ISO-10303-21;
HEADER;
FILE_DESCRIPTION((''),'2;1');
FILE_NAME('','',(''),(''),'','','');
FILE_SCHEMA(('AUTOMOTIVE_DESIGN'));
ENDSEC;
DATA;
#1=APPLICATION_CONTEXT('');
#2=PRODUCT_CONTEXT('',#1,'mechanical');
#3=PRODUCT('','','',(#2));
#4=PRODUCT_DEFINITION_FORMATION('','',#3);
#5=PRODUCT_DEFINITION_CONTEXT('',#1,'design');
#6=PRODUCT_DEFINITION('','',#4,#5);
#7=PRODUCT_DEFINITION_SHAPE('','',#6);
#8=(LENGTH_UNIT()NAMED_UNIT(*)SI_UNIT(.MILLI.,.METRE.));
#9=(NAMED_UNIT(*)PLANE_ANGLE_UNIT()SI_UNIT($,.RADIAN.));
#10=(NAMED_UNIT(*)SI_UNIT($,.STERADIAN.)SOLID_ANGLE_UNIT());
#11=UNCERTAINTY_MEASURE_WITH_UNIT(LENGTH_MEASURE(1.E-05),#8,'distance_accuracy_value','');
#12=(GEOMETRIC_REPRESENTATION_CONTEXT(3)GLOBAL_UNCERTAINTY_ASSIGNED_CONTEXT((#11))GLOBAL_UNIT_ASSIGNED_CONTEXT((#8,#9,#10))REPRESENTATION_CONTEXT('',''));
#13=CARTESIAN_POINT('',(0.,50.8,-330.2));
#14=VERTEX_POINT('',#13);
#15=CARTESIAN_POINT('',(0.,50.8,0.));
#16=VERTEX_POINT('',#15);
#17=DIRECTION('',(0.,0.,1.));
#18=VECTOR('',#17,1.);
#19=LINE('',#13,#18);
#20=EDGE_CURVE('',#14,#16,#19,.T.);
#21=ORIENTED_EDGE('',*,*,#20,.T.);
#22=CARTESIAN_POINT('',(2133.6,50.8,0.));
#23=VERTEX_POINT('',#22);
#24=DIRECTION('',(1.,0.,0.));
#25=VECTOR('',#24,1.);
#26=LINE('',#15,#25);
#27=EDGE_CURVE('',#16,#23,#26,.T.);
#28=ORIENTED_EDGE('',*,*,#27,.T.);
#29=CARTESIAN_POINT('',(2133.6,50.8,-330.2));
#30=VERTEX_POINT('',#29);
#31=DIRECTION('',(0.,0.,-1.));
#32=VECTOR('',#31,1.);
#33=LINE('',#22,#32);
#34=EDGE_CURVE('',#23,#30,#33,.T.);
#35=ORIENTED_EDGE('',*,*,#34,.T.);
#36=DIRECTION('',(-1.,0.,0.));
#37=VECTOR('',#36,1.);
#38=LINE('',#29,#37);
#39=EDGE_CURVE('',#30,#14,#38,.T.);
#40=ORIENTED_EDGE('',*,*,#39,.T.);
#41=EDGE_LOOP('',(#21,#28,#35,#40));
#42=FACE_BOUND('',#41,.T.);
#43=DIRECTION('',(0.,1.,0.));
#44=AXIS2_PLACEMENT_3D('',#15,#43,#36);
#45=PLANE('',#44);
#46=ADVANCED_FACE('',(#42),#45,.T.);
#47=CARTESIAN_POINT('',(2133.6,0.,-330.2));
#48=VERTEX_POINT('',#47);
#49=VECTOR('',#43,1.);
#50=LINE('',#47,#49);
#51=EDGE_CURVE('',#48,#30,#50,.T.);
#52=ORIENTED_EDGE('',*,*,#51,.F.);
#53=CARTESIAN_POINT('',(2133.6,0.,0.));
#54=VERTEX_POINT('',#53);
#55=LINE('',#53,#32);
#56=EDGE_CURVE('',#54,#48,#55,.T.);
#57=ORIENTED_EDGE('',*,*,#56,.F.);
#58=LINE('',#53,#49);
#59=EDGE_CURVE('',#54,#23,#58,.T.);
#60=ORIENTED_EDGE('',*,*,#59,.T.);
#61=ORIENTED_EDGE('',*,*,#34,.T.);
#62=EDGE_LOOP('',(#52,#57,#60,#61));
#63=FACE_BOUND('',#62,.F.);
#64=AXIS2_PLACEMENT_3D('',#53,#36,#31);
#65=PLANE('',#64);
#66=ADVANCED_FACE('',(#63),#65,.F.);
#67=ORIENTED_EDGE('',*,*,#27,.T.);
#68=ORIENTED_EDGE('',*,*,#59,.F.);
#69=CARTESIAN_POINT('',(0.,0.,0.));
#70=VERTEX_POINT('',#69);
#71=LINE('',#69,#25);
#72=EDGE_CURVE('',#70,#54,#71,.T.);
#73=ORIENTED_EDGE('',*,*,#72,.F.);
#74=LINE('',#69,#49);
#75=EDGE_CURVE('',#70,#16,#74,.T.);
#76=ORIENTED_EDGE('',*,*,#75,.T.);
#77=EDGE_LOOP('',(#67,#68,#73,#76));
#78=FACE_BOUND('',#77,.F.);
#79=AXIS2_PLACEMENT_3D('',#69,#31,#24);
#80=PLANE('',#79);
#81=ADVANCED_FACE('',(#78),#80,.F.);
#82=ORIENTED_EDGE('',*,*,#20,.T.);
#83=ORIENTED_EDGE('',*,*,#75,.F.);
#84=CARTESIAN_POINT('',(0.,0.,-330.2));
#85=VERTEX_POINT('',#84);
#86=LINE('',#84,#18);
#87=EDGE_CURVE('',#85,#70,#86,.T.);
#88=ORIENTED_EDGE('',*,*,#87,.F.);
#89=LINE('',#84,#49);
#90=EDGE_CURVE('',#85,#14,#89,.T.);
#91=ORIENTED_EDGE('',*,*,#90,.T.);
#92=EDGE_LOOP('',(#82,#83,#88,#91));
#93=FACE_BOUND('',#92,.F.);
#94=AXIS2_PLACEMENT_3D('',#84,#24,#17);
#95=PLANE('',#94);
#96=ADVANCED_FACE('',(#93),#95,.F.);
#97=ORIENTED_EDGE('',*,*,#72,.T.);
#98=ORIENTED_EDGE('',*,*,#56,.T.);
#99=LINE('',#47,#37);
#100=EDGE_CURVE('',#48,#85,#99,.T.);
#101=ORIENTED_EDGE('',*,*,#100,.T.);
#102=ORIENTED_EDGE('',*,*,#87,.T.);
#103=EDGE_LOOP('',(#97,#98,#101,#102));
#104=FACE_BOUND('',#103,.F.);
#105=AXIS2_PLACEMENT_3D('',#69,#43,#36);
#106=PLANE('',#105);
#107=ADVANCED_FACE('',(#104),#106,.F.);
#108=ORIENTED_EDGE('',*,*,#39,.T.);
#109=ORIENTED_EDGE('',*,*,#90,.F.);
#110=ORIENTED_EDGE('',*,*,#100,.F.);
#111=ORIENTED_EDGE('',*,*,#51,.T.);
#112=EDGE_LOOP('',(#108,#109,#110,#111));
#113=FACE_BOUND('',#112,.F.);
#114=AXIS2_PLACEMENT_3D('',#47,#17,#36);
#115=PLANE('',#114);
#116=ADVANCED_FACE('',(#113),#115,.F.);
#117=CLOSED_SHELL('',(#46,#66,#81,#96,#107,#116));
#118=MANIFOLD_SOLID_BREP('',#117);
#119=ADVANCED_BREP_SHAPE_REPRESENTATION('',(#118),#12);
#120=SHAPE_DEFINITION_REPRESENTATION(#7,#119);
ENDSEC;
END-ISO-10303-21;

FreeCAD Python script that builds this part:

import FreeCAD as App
import Part
import Sketcher
Q = App.Units.Quantity

doc = App.newDocument("Part")
params = doc.addObject("Spreadsheet::Sheet", "Params")
for row, (alias, value) in enumerate([
    ("sketch1_width", "84 in"),
    ("sketch1_height", "13 in"),
    ("pad1_length", "2 in"),
], start=1):
    params.set(f"A{row}", alias)
    params.set(f"B{row}", "=" + value)
    params.setAlias(f"B{row}", alias)

body = doc.addObject("PartDesign::Body", "Body")

sketch1 = doc.addObject("Sketcher::SketchObject", "Sketch")
body.addObject(sketch1)
sketch1.AttachmentSupport = (doc.XZ_Plane, [""])
sketch1.MapMode = "FlatFace"
sketch1.addGeometry(Part.LineSegment(App.Vector(0, -330, 0), App.Vector(0, 0, 0)), False)
sketch1.addGeometry(Part.LineSegment(App.Vector(0, 0, 0), App.Vector(2134, 0, 0)), False)
sketch1.addGeometry(Part.LineSegment(App.Vector(2134, 0, 0), App.Vector(2134, -330, 0)), False)
sketch1.addGeometry(Part.LineSegment(App.Vector(2134, -330, 0), App.Vector(0, -330, 0)), False)
sketch1.addConstraint(Sketcher.Constraint("Coincident", 0, 2, 1, 1))
sketch1.addConstraint(Sketcher.Constraint("Coincident", 1, 2, 2, 1))
sketch1.addConstraint(Sketcher.Constraint("Coincident", 2, 2, 3, 1))
sketch1.addConstraint(Sketcher.Constraint("Coincident", 3, 2, 0, 1))
sketch1.addConstraint(Sketcher.Constraint("Vertical", 0))
sketch1.addConstraint(Sketcher.Constraint("Horizontal", 1))
sketch1.addConstraint(Sketcher.Constraint("Vertical", 2))
sketch1.addConstraint(Sketcher.Constraint("Horizontal", 3))
sketch1.addConstraint(Sketcher.Constraint("Coincident", 0, 2, -1, 1))
sketch1.addConstraint(Sketcher.Constraint("DistanceX", 1, 1, 1, 2, Q("84 in")))
sketch1.addConstraint(Sketcher.Constraint("DistanceY", 0, 1, 0, 2, Q("13 in")))
sketch1.setExpression("Constraints[9]", "Params.sketch1_width")
sketch1.setExpression("Constraints[10]", "Params.sketch1_height")
pad1 = doc.addObject("PartDesign::Pad", "Pad")
body.addObject(pad1)
pad1.Profile = sketch1
pad1.setExpression("Length", "Params.pad1_length")
pad1.Reversed = True

doc.recompute()
